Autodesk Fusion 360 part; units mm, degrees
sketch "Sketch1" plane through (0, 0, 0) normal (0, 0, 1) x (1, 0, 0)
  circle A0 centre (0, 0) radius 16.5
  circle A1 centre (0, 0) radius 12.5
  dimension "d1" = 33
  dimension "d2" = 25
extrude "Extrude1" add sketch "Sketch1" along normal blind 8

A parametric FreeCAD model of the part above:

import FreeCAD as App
import Part
import Sketcher

doc = App.newDocument("Part")
params = doc.addObject("Spreadsheet::Sheet", "Params")
for row, (alias, value) in enumerate([
    ("sketch1_diameter", "33 mm"),
    ("sketch1_diameter2", "25 mm"),
    ("pad1_length", "8 mm"),
], start=1):
    params.set(f"A{row}", alias)
    params.set(f"B{row}", "=" + value)
    params.setAlias(f"B{row}", alias)

body = doc.addObject("PartDesign::Body", "Body")

sketch1 = body.newObject("Sketcher::SketchObject", "Sketch")
sketch1.AttachmentSupport = (doc.getObject("XY_Plane"), [""])
sketch1.MapMode = "FlatFace"
sketch1.addGeometry([
    Part.Circle(App.Vector(0, 0, 0), App.Vector(0, 0, 1), 16),
    Part.Circle(App.Vector(0, 0, 0), App.Vector(0, 0, 1), 12),
], False)
sketch1.addConstraint([
    Sketcher.Constraint("Coincident", 0, 3, -1, 1),
    Sketcher.Constraint("Coincident", 1, 3, -1, 1),
    Sketcher.Constraint("Diameter", 0, 33.0),
    Sketcher.Constraint("Diameter", 1, 25.0),
])
sketch1.setExpression("Constraints[2]", "Params.sketch1_diameter")
sketch1.setExpression("Constraints[3]", "Params.sketch1_diameter2")
pad1 = body.newObject("PartDesign::Pad", "Pad")
pad1.Profile = sketch1
pad1.setExpression("Length", "Params.pad1_length")

doc.recompute()
